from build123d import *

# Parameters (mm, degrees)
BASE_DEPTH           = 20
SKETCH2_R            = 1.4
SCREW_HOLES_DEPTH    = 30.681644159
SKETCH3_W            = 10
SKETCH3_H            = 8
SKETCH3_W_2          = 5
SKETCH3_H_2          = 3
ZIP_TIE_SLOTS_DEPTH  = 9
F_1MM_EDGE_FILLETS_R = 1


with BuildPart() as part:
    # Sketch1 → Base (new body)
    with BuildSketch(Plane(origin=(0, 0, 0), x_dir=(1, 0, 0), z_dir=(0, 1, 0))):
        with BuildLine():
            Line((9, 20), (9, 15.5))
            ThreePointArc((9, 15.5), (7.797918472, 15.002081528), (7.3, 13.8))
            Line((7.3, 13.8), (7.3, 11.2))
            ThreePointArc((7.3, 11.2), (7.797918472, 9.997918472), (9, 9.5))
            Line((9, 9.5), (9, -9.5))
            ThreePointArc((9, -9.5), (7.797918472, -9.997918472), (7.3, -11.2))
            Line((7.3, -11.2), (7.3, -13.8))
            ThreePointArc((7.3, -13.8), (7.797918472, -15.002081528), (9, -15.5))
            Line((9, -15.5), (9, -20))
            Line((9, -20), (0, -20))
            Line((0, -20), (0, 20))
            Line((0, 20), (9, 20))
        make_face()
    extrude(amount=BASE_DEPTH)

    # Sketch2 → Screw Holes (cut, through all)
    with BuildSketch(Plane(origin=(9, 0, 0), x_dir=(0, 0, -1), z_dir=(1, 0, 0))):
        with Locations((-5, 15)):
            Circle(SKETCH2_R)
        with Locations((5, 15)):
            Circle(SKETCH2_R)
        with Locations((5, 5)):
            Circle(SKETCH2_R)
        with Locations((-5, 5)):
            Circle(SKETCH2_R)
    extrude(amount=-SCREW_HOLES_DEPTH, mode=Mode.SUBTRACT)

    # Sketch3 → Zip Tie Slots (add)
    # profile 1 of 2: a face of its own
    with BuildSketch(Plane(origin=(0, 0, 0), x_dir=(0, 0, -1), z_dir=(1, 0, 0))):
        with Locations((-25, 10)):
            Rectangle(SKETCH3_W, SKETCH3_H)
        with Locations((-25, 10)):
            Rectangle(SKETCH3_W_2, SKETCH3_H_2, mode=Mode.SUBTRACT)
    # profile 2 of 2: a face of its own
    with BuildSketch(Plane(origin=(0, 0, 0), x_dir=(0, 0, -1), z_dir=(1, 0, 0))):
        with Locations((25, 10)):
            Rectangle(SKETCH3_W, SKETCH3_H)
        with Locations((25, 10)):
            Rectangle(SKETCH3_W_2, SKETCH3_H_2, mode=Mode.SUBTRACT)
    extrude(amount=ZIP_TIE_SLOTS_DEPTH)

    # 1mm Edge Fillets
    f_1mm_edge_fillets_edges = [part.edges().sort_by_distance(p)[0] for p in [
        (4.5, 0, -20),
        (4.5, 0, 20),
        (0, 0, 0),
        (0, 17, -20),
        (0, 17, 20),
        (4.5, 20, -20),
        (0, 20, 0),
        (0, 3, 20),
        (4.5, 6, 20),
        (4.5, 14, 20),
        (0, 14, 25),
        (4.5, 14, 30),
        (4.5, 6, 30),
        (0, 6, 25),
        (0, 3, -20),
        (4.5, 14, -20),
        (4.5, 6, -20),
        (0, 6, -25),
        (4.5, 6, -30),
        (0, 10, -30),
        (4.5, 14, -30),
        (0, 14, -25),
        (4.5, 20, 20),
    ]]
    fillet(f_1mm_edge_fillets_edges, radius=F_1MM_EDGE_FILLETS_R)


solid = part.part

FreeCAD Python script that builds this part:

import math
import FreeCAD as App
import Part
import Sketcher
Q = App.Units.Quantity


def edges_at(feature, points):
    """Names of the edges that pass closest to the given points."""
    edges = feature.Shape.Edges
    near = lambda p: min(range(len(edges)), key=lambda i: edges[i].distToShape(Part.Vertex(*p))[0])
    return sorted({f"Edge{near(p) + 1}" for p in points})

doc = App.newDocument("Part")
body = doc.addObject("PartDesign::Body", "Body")

# Sketch on XZ plane
sketch1 = body.newObject("Sketcher::SketchObject", "Sketch")
sketch1.AttachmentSupport = (doc.getObject("XZ_Plane"), [""])
sketch1.MapMode = "FlatFace"
sketch1.addGeometry(Part.LineSegment(App.Vector(9, -15.5, 0), App.Vector(9, -20, 0)), False)
sketch1.addGeometry(Part.LineSegment(App.Vector(9, -20, 0), App.Vector(0, -20, 0)), False)
sketch1.addGeometry(Part.LineSegment(App.Vector(0, -20, 0), App.Vector(0, 20, 0)), False)
sketch1.addGeometry(Part.LineSegment(App.Vector(0, 20, 0), App.Vector(9, 20, 0)), False)
sketch1.addGeometry(Part.LineSegment(App.Vector(9, 20, 0), App.Vector(9, 15.5, 0)), False)
sketch1.addGeometry(Part.ArcOfCircle(Part.Circle(App.Vector(9, 13.8, 0), App.Vector(0, 0, 1), 1.7), math.radians(90), math.radians(180)), False)
sketch1.addGeometry(Part.LineSegment(App.Vector(7.3, 13.8, 0), App.Vector(7.3, 11.2, 0)), False)
sketch1.addGeometry(Part.ArcOfCircle(Part.Circle(App.Vector(9, 11.2, 0), App.Vector(0, 0, 1), 1.7), math.radians(180), math.radians(270)), False)
sketch1.addGeometry(Part.LineSegment(App.Vector(9, 9.5, 0), App.Vector(9, -9.5, 0)), False)
sketch1.addGeometry(Part.ArcOfCircle(Part.Circle(App.Vector(9, -11.2, 0), App.Vector(0, 0, 1), 1.7), math.radians(90), math.radians(180)), False)
sketch1.addGeometry(Part.LineSegment(App.Vector(7.3, -11.2, 0), App.Vector(7.3, -13.8, 0)), False)
sketch1.addGeometry(Part.ArcOfCircle(Part.Circle(App.Vector(9, -13.8, 0), App.Vector(0, 0, 1), 1.7), math.radians(180), math.radians(270)), False)
sketch1.addConstraint(Sketcher.Constraint("Coincident", 0, 2, 1, 1))
sketch1.addConstraint(Sketcher.Constraint("Coincident", 1, 2, 2, 1))
sketch1.addConstraint(Sketcher.Constraint("Coincident", 2, 2, 3, 1))
sketch1.addConstraint(Sketcher.Constraint("Coincident", 3, 2, 4, 1))
sketch1.addConstraint(Sketcher.Constraint("Coincident", 4, 2, 5, 1))
sketch1.addConstraint(Sketcher.Constraint("Tangent", 5, 2, 6, 1))
sketch1.addConstraint(Sketcher.Constraint("Tangent", 6, 2, 7, 1))
sketch1.addConstraint(Sketcher.Constraint("Coincident", 7, 2, 8, 1))
sketch1.addConstraint(Sketcher.Constraint("Coincident", 8, 2, 9, 1))
sketch1.addConstraint(Sketcher.Constraint("Tangent", 9, 2, 10, 1))
sketch1.addConstraint(Sketcher.Constraint("Tangent", 10, 2, 11, 1))
sketch1.addConstraint(Sketcher.Constraint("Coincident", 11, 2, 0, 1))
sketch1.addConstraint(Sketcher.Constraint("Vertical", 0))
sketch1.addConstraint(Sketcher.Constraint("Horizontal", 1))
sketch1.addConstraint(Sketcher.Constraint("Vertical", 2))
sketch1.addConstraint(Sketcher.Constraint("Horizontal", 3))
sketch1.addConstraint(Sketcher.Constraint("Vertical", 4))
sketch1.addConstraint(Sketcher.Constraint("Vertical", 6))
sketch1.addConstraint(Sketcher.Constraint("Vertical", 8))
sketch1.addConstraint(Sketcher.Constraint("Vertical", 10))
sketch1.addConstraint(Sketcher.Constraint("Equal", 5, 7))
sketch1.addConstraint(Sketcher.Constraint("Equal", 7, 9))
sketch1.addConstraint(Sketcher.Constraint("Equal", 9, 11))
sketch1.addConstraint(Sketcher.Constraint("Symmetric", 1, 2, 2, 2, -1, 1))
sketch1.addConstraint(Sketcher.Constraint("Symmetric", 7, 3, 9, 3, -1))
sketch1.addConstraint(Sketcher.Constraint("Symmetric", 4, 2, 11, 2, -1))
sketch1.addConstraint(Sketcher.Constraint("Vertical", 11, 3, 0, 2))
sketch1.addConstraint(Sketcher.Constraint("Vertical", 4, 2, 7, 2))
sketch1.addConstraint(Sketcher.Constraint("Radius", 5, Q("1.7 mm")))
sketch1.addConstraint(Sketcher.Constraint("DistanceX", 1, 2, 1, 1, Q("9 mm")))
sketch1.addConstraint(Sketcher.Constraint("DistanceY", 2, 1, 2, 2, Q("40 mm")))
sketch1.addConstraint(Sketcher.Constraint("DistanceY", 8, 2, 8, 1, Q("19 mm")))
sketch1.addConstraint(Sketcher.Constraint("DistanceY", 0, 2, 0, 1, Q("4.5 mm")))
pad1 = body.newObject("PartDesign::Pad", "Pad")
pad1.Profile = sketch1
pad1.Length = 20
pad1.Reversed = True

# Sketch on YZ plane
sketch2 = body.newObject("Sketcher::SketchObject", "Sketch001")
sketch2.AttachmentSupport = (doc.getObject("YZ_Plane"), [""])
sketch2.MapMode = "FlatFace"
sketch2.AttachmentOffset = App.Placement(App.Vector(0, 0, 9), App.Rotation())
sketch2.addGeometry(Part.Circle(App.Vector(15, 5, 0), App.Vector(0, 0, 1), 1.4), False)
sketch2.addGeometry(Part.Circle(App.Vector(15, -5, 0), App.Vector(0, 0, 1), 1.4), False)
sketch2.addGeometry(Part.Circle(App.Vector(5, -5, 0), App.Vector(0, 0, 1), 1.4), False)
sketch2.addGeometry(Part.Circle(App.Vector(5, 5, 0), App.Vector(0, 0, 1), 1.4), False)
sketch2.addConstraint(Sketcher.Constraint("Equal", 0, 1))
sketch2.addConstraint(Sketcher.Constraint("Equal", 1, 2))
sketch2.addConstraint(Sketcher.Constraint("Equal", 2, 3))
sketch2.addConstraint(Sketcher.Constraint("Symmetric", 0, 3, 1, 3, -1))
sketch2.addConstraint(Sketcher.Constraint("Symmetric", 2, 3, 3, 3, -1))
sketch2.addConstraint(Sketcher.Constraint("Horizontal", 1, 3, 2, 3))
sketch2.addConstraint(Sketcher.Constraint("Diameter", 0, Q("2.8 mm")))
sketch2.addConstraint(Sketcher.Constraint("DistanceX", -1, 1, 0, 3, Q("15 mm")))
sketch2.addConstraint(Sketcher.Constraint("DistanceY", -1, 1, 0, 3, Q("5 mm")))
sketch2.addConstraint(Sketcher.Constraint("DistanceX", -1, 1, 2, 3, Q("5 mm")))
pocket1 = body.newObject("PartDesign::Pocket", "Pocket")
pocket1.Profile = sketch2
pocket1.Type = "ThroughAll"

# Sketch on YZ plane
sketch3 = body.newObject("Sketcher::SketchObject", "Sketch002")
sketch3.AttachmentSupport = (doc.getObject("YZ_Plane"), [""])
sketch3.MapMode = "FlatFace"
sketch3.addGeometry(Part.LineSegment(App.Vector(14, 30, 0), App.Vector(6, 30, 0)), False)
sketch3.addGeometry(Part.LineSegment(App.Vector(6, 30, 0), App.Vector(6, 20, 0)), False)
sketch3.addGeometry(Part.LineSegment(App.Vector(6, 20, 0), App.Vector(14, 20, 0)), False)
sketch3.addGeometry(Part.LineSegment(App.Vector(14, 20, 0), App.Vector(14, 30, 0)), False)
sketch3.addGeometry(Part.LineSegment(App.Vector(8.5, 22.5, 0), App.Vector(8.5, 27.5, 0)), False)
sketch3.addGeometry(Part.LineSegment(App.Vector(8.5, 27.5, 0), App.Vector(11.5, 27.5, 0)), False)
sketch3.addGeometry(Part.LineSegment(App.Vector(11.5, 27.5, 0), App.Vector(11.5, 22.5, 0)), False)
sketch3.addGeometry(Part.LineSegment(App.Vector(11.5, 22.5, 0), App.Vector(8.5, 22.5, 0)), False)
sketch3.addGeometry(Part.LineSegment(App.Vector(14, -20, 0), App.Vector(6, -20, 0)), False)
sketch3.addGeometry(Part.LineSegment(App.Vector(6, -20, 0), App.Vector(6, -30, 0)), False)
sketch3.addGeometry(Part.LineSegment(App.Vector(6, -30, 0), App.Vector(14, -30, 0)), False)
sketch3.addGeometry(Part.LineSegment(App.Vector(14, -30, 0), App.Vector(14, -20, 0)), False)
sketch3.addGeometry(Part.LineSegment(App.Vector(8.5, -27.5, 0), App.Vector(8.5, -22.5, 0)), False)
sketch3.addGeometry(Part.LineSegment(App.Vector(8.5, -22.5, 0), App.Vector(11.5, -22.5, 0)), False)
sketch3.addGeometry(Part.LineSegment(App.Vector(11.5, -22.5, 0), App.Vector(11.5, -27.5, 0)), False)
sketch3.addGeometry(Part.LineSegment(App.Vector(11.5, -27.5, 0), App.Vector(8.5, -27.5, 0)), False)
sketch3.addConstraint(Sketcher.Constraint("Coincident", 0, 2, 1, 1))
sketch3.addConstraint(Sketcher.Constraint("Coincident", 1, 2, 2, 1))
sketch3.addConstraint(Sketcher.Constraint("Coincident", 2, 2, 3, 1))
sketch3.addConstraint(Sketcher.Constraint("Coincident", 3, 2, 0, 1))
sketch3.addConstraint(Sketcher.Constraint("Coincident", 4, 2, 5, 1))
sketch3.addConstraint(Sketcher.Constraint("Coincident", 5, 2, 6, 1))
sketch3.addConstraint(Sketcher.Constraint("Coincident", 6, 2, 7, 1))
sketch3.addConstraint(Sketcher.Constraint("Coincident", 7, 2, 4, 1))
sketch3.addConstraint(Sketcher.Constraint("Coincident", 8, 2, 9, 1))
sketch3.addConstraint(Sketcher.Constraint("Coincident", 9, 2, 10, 1))
sketch3.addConstraint(Sketcher.Constraint("Coincident", 10, 2, 11, 1))
sketch3.addConstraint(Sketcher.Constraint("Coincident", 11, 2, 8, 1))
sketch3.addConstraint(Sketcher.Constraint("Coincident", 12, 2, 13, 1))
sketch3.addConstraint(Sketcher.Constraint("Coincident", 13, 2, 14, 1))
sketch3.addConstraint(Sketcher.Constraint("Coincident", 14, 2, 15, 1))
sketch3.addConstraint(Sketcher.Constraint("Coincident", 15, 2, 12, 1))
sketch3.addConstraint(Sketcher.Constraint("Horizontal", 0))
sketch3.addConstraint(Sketcher.Constraint("Vertical", 1))
sketch3.addConstraint(Sketcher.Constraint("Horizontal", 2))
sketch3.addConstraint(Sketcher.Constraint("Vertical", 3))
sketch3.addConstraint(Sketcher.Constraint("Vertical", 4))
sketch3.addConstraint(Sketcher.Constraint("Horizontal", 5))
sketch3.addConstraint(Sketcher.Constraint("Vertical", 6))
sketch3.addConstraint(Sketcher.Constraint("Horizontal", 7))
sketch3.addConstraint(Sketcher.Constraint("Horizontal", 8))
sketch3.addConstraint(Sketcher.Constraint("Vertical", 9))
sketch3.addConstraint(Sketcher.Constraint("Horizontal", 10))
sketch3.addConstraint(Sketcher.Constraint("Vertical", 11))
sketch3.addConstraint(Sketcher.Constraint("Vertical", 12))
sketch3.addConstraint(Sketcher.Constraint("Horizontal", 13))
sketch3.addConstraint(Sketcher.Constraint("Vertical", 14))
sketch3.addConstraint(Sketcher.Constraint("Horizontal", 15))
sketch3.addConstraint(Sketcher.Constraint("Symmetric", 1, 2, 8, 2, -1))
sketch3.addConstraint(Sketcher.Constraint("Symmetric", 3, 2, 10, 2, -1))
sketch3.addConstraint(Sketcher.Constraint("Symmetric", 7, 2, 12, 2, -1))
sketch3.addConstraint(Sketcher.Constraint("Symmetric", 5, 2, 14, 2, -1))
sketch3.addConstraint(Sketcher.Constraint("DistanceX", 0, 2, 0, 1, Q("8 mm")))
sketch3.addConstraint(Sketcher.Constraint("DistanceX", 5, 1, 5, 2, Q("3 mm")))
sketch3.addConstraint(Sketcher.Constraint("DistanceY", 1, 2, 1, 1, Q("10 mm")))
sketch3.addConstraint(Sketcher.Constraint("DistanceY", 4, 1, 4, 2, Q("5 mm")))
sketch3.addConstraint(Sketcher.Constraint("DistanceX", -1, 1, 0, 2, Q("6 mm")))
sketch3.addConstraint(Sketcher.Constraint("DistanceY", -1, 1, 0, 2, Q("30 mm")))
sketch3.addConstraint(Sketcher.Constraint("DistanceX", -1, 1, 4, 2, Q("8.5 mm")))
sketch3.addConstraint(Sketcher.Constraint("DistanceY", -1, 1, 4, 2, Q("27.5 mm")))
pad2 = body.newObject("PartDesign::Pad", "Pad001")
pad2.Profile = sketch3
pad2.Length = 9
doc.recompute()

fillet = body.newObject("PartDesign::Fillet", "Fillet")
fillet.Base = (pad2, edges_at(pad2, [
    (4.5, 0, -20),
    (4.5, 0, 20),
    (0, 0, 0),
    (0, 17, -20),
    (0, 17, 20),
    (4.5, 20, -20),
    (0, 20, 0),
    (0, 3, 20),
    (4.5, 6, 20),
    (4.5, 14, 20),
    (0, 14, 25),
    (4.5, 14, 30),
    (4.5, 6, 30),
    (0, 6, 25),
    (0, 3, -20),
    (4.5, 14, -20),
    (4.5, 6, -20),
    (0, 6, -25),
    (4.5, 6, -30),
    (0, 10, -30),
    (4.5, 14, -30),
    (0, 14, -25),
    (4.5, 20, 20),
]))
fillet.Radius = 1

doc.recompute()
